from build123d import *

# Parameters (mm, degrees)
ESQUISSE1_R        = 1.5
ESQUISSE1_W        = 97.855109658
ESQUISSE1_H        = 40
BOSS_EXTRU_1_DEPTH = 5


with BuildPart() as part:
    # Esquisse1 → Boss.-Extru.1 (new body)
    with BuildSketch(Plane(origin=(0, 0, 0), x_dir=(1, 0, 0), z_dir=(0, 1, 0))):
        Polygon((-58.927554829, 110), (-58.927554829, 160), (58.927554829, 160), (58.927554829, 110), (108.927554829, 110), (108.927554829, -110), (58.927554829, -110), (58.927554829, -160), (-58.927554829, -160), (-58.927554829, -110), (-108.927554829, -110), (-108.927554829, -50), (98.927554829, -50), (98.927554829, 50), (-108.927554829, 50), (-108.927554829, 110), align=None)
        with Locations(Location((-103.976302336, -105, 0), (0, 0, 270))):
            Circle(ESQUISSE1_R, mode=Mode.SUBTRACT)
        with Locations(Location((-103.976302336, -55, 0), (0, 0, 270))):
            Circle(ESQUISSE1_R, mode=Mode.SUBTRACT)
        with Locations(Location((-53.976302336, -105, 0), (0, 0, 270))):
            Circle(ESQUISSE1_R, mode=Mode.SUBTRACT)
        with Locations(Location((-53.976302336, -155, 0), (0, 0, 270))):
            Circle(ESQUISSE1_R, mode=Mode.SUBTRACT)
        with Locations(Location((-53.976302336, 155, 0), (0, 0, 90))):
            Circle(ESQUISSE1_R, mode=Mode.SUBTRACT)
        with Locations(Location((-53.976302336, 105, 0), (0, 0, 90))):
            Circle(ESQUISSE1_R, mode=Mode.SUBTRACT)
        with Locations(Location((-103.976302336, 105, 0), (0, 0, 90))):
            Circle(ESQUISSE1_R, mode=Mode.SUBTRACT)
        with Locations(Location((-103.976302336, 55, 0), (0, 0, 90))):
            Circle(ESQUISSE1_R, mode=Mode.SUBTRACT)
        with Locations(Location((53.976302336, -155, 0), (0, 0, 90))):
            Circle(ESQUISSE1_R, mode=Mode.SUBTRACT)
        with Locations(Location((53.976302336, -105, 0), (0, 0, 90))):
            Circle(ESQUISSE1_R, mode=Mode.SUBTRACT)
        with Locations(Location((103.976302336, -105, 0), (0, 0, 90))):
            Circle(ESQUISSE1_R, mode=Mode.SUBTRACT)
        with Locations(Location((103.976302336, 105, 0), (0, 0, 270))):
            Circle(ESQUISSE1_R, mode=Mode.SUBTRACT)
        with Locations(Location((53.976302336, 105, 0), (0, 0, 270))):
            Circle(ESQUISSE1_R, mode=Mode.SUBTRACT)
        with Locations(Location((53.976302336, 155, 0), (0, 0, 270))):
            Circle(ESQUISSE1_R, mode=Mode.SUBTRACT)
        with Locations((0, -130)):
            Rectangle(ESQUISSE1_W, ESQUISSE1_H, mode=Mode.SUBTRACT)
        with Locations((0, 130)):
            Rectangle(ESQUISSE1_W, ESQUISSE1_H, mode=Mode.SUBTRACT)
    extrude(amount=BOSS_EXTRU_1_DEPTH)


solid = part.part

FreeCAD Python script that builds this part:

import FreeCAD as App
import Part
import Sketcher
Q = App.Units.Quantity

doc = App.newDocument("Part")
params = doc.addObject("Spreadsheet::Sheet", "Params")
for row, (alias, value) in enumerate([
    ("sketch1_diameter", "3 mm"),
    ("sketch1_width", "50 mm"),
    ("sketch1_height", "60 mm"),
    ("sketch1_height2", "100 mm"),
    ("sketch1_height3", "40 mm"),
    ("pad1_length", "5 mm"),
], start=1):
    params.set(f"A{row}", alias)
    params.set(f"B{row}", "=" + value)
    params.setAlias(f"B{row}", alias)

body = doc.addObject("PartDesign::Body", "Body")

sketch1 = body.newObject("Sketcher::SketchObject", "Sketch")
sketch1.AttachmentSupport = (doc.getObject("XZ_Plane"), [""])
sketch1.MapMode = "FlatFace"
sketch1.addGeometry(Part.LineSegment(App.Vector(-58.9, -160, 0), App.Vector(-58.9, -110, 0)), False)
sketch1.addGeometry(Part.LineSegment(App.Vector(-58.9, -110, 0), App.Vector(-108.9, -110, 0)), False)
sketch1.addGeometry(Part.LineSegment(App.Vector(-108.9, -110, 0), App.Vector(-108.9, -50, 0)), False)
sketch1.addGeometry(Part.LineSegment(App.Vector(-108.9, -50, 0), App.Vector(98.9, -50, 0)), False)
sketch1.addGeometry(Part.LineSegment(App.Vector(98.9, -50, 0), App.Vector(98.9, 50, 0)), False)
sketch1.addGeometry(Part.LineSegment(App.Vector(98.9, 50, 0), App.Vector(-108.9, 50, 0)), False)
sketch1.addGeometry(Part.LineSegment(App.Vector(-108.9, 50, 0), App.Vector(-108.9, 110, 0)), False)
sketch1.addGeometry(Part.LineSegment(App.Vector(-108.9, 110, 0), App.Vector(-58.9, 110, 0)), False)
sketch1.addGeometry(Part.LineSegment(App.Vector(-58.9, 110, 0), App.Vector(-58.9, 160, 0)), False)
sketch1.addGeometry(Part.LineSegment(App.Vector(-58.9, 160, 0), App.Vector(58.9, 160, 0)), False)
sketch1.addGeometry(Part.LineSegment(App.Vector(58.9, 160, 0), App.Vector(58.9, 110, 0)), False)
sketch1.addGeometry(Part.LineSegment(App.Vector(58.9, 110, 0), App.Vector(108.9, 110, 0)), False)
sketch1.addGeometry(Part.LineSegment(App.Vector(108.9, 110, 0), App.Vector(108.9, -110, 0)), False)
sketch1.addGeometry(Part.LineSegment(App.Vector(108.9, -110, 0), App.Vector(58.9, -110, 0)), False)
sketch1.addGeometry(Part.LineSegment(App.Vector(58.9, -110, 0), App.Vector(58.9, -160, 0)), False)
sketch1.addGeometry(Part.LineSegment(App.Vector(58.9, -160, 0), App.Vector(-58.9, -160, 0)), False)
sketch1.addGeometry(Part.Circle(App.Vector(54, 155, 0), App.Vector(0, 0, 1), 1.5), False)
sketch1.addGeometry(Part.Circle(App.Vector(104, 105, 0), App.Vector(0, 0, 1), 1.5), False)
sketch1.addGeometry(Part.Circle(App.Vector(54, 105, 0), App.Vector(0, 0, 1), 1.5), False)
sketch1.addGeometry(Part.LineSegment(App.Vector(-48.9, 150, 0), App.Vector(-48.9, 110, 0)), False)
sketch1.addGeometry(Part.LineSegment(App.Vector(-48.9, 110, 0), App.Vector(48.9, 110, 0)), False)
sketch1.addGeometry(Part.LineSegment(App.Vector(48.9, 110, 0), App.Vector(48.9, 150, 0)), False)
sketch1.addGeometry(Part.LineSegment(App.Vector(48.9, 150, 0), App.Vector(-48.9, 150, 0)), False)
sketch1.addGeometry(Part.Circle(App.Vector(-54, 155, 0), App.Vector(0, 0, 1), 1.5), False)
sketch1.addGeometry(Part.Circle(App.Vector(-54, 105, 0), App.Vector(0, 0, 1), 1.5), False)
sketch1.addGeometry(Part.Circle(App.Vector(-104, 105, 0), App.Vector(0, 0, 1), 1.5), False)
sketch1.addGeometry(Part.Circle(App.Vector(-104, 55, 0), App.Vector(0, 0, 1), 1.5), False)
sketch1.addGeometry(Part.Circle(App.Vector(104, -105, 0), App.Vector(0, 0, 1), 1.5), False)
sketch1.addGeometry(Part.Circle(App.Vector(54, -105, 0), App.Vector(0, 0, 1), 1.5), False)
sketch1.addGeometry(Part.Circle(App.Vector(54, -155, 0), App.Vector(0, 0, 1), 1.5), False)
sketch1.addGeometry(Part.LineSegment(App.Vector(-48.9, -110, 0), App.Vector(-48.9, -150, 0)), False)
sketch1.addGeometry(Part.LineSegment(App.Vector(-48.9, -150, 0), App.Vector(48.9, -150, 0)), False)
sketch1.addGeometry(Part.LineSegment(App.Vector(48.9, -150, 0), App.Vector(48.9, -110, 0)), False)
sketch1.addGeometry(Part.LineSegment(App.Vector(48.9, -110, 0), App.Vector(-48.9, -110, 0)), False)
sketch1.addGeometry(Part.Circle(App.Vector(-104, -55, 0), App.Vector(0, 0, 1), 1.5), False)
sketch1.addGeometry(Part.Circle(App.Vector(-54, -105, 0), App.Vector(0, 0, 1), 1.5), False)
sketch1.addGeometry(Part.Circle(App.Vector(-104, -105, 0), App.Vector(0, 0, 1), 1.5), False)
sketch1.addGeometry(Part.Circle(App.Vector(-54, -155, 0), App.Vector(0, 0, 1), 1.5), False)
sketch1.addConstraint(Sketcher.Constraint("Coincident", 0, 2, 1, 1))
sketch1.addConstraint(Sketcher.Constraint("Coincident", 1, 2, 2, 1))
sketch1.addConstraint(Sketcher.Constraint("Coincident", 2, 2, 3, 1))
sketch1.addConstraint(Sketcher.Constraint("Coincident", 3, 2, 4, 1))
sketch1.addConstraint(Sketcher.Constraint("Coincident", 4, 2, 5, 1))
sketch1.addConstraint(Sketcher.Constraint("Coincident", 5, 2, 6, 1))
sketch1.addConstraint(Sketcher.Constraint("Coincident", 6, 2, 7, 1))
sketch1.addConstraint(Sketcher.Constraint("Coincident", 7, 2, 8, 1))
sketch1.addConstraint(Sketcher.Constraint("Coincident", 8, 2, 9, 1))
sketch1.addConstraint(Sketcher.Constraint("Coincident", 9, 2, 10, 1))
sketch1.addConstraint(Sketcher.Constraint("Coincident", 10, 2, 11, 1))
sketch1.addConstraint(Sketcher.Constraint("Coincident", 11, 2, 12, 1))
sketch1.addConstraint(Sketcher.Constraint("Coincident", 12, 2, 13, 1))
sketch1.addConstraint(Sketcher.Constraint("Coincident", 13, 2, 14, 1))
sketch1.addConstraint(Sketcher.Constraint("Coincident", 14, 2, 15, 1))
sketch1.addConstraint(Sketcher.Constraint("Coincident", 15, 2, 0, 1))
sketch1.addConstraint(Sketcher.Constraint("Coincident", 19, 2, 20, 1))
sketch1.addConstraint(Sketcher.Constraint("Coincident", 20, 2, 21, 1))
sketch1.addConstraint(Sketcher.Constraint("Coincident", 21, 2, 22, 1))
sketch1.addConstraint(Sketcher.Constraint("Coincident", 22, 2, 19, 1))
sketch1.addConstraint(Sketcher.Constraint("Coincident", 30, 2, 31, 1))
sketch1.addConstraint(Sketcher.Constraint("Coincident", 31, 2, 32, 1))
sketch1.addConstraint(Sketcher.Constraint("Coincident", 32, 2, 33, 1))
sketch1.addConstraint(Sketcher.Constraint("Coincident", 33, 2, 30, 1))
sketch1.addConstraint(Sketcher.Constraint("Vertical", 0))
sketch1.addConstraint(Sketcher.Constraint("Horizontal", 1))
sketch1.addConstraint(Sketcher.Constraint("Vertical", 2))
sketch1.addConstraint(Sketcher.Constraint("Horizontal", 3))
sketch1.addConstraint(Sketcher.Constraint("Vertical", 4))
sketch1.addConstraint(Sketcher.Constraint("Horizontal", 5))
sketch1.addConstraint(Sketcher.Constraint("Vertical", 6))
sketch1.addConstraint(Sketcher.Constraint("Horizontal", 7))
sketch1.addConstraint(Sketcher.Constraint("Vertical", 8))
sketch1.addConstraint(Sketcher.Constraint("Horizontal", 9))
sketch1.addConstraint(Sketcher.Constraint("Vertical", 10))
sketch1.addConstraint(Sketcher.Constraint("Horizontal", 11))
sketch1.addConstraint(Sketcher.Constraint("Vertical", 12))
sketch1.addConstraint(Sketcher.Constraint("Horizontal", 13))
sketch1.addConstraint(Sketcher.Constraint("Vertical", 14))
sketch1.addConstraint(Sketcher.Constraint("Horizontal", 15))
sketch1.addConstraint(Sketcher.Constraint("Vertical", 19))
sketch1.addConstraint(Sketcher.Constraint("Horizontal", 20))
sketch1.addConstraint(Sketcher.Constraint("Vertical", 21))
sketch1.addConstraint(Sketcher.Constraint("Horizontal", 22))
sketch1.addConstraint(Sketcher.Constraint("Vertical", 30))
sketch1.addConstraint(Sketcher.Constraint("Horizontal", 31))
sketch1.addConstraint(Sketcher.Constraint("Vertical", 32))
sketch1.addConstraint(Sketcher.Constraint("Horizontal", 33))
sketch1.addConstraint(Sketcher.Constraint("Equal", 16, 17))
sketch1.addConstraint(Sketcher.Constraint("Equal", 17, 18))
sketch1.addConstraint(Sketcher.Constraint("Equal", 18, 23))
sketch1.addConstraint(Sketcher.Constraint("Equal", 23, 24))
sketch1.addConstraint(Sketcher.Constraint("Equal", 24, 25))
sketch1.addConstraint(Sketcher.Constraint("Equal", 25, 26))
sketch1.addConstraint(Sketcher.Constraint("Equal", 26, 27))
sketch1.addConstraint(Sketcher.Constraint("Equal", 27, 28))
sketch1.addConstraint(Sketcher.Constraint("Equal", 28, 29))
sketch1.addConstraint(Sketcher.Constraint("Equal", 29, 34))
sketch1.addConstraint(Sketcher.Constraint("Equal", 34, 35))
sketch1.addConstraint(Sketcher.Constraint("Equal", 35, 36))
sketch1.addConstraint(Sketcher.Constraint("Equal", 36, 37))
sketch1.addConstraint(Sketcher.Constraint("Symmetric", 25, 3, 27, 3, -1, 1))
sketch1.addConstraint(Sketcher.Constraint("Symmetric", 24, 3, 28, 3, -1, 1))
sketch1.addConstraint(Sketcher.Constraint("Symmetric", 23, 3, 29, 3, -1, 1))
sketch1.addConstraint(Sketcher.Constraint("Symmetric", 18, 3, 35, 3, -1, 1))
sketch1.addConstraint(Sketcher.Constraint("Symmetric", 17, 3, 36, 3, -1, 1))
sketch1.addConstraint(Sketcher.Constraint("Symmetric", 16, 3, 37, 3, -1, 1))
sketch1.addConstraint(Sketcher.Constraint("Symmetric", 0, 2, 10, 2, -1, 1))
sketch1.addConstraint(Sketcher.Constraint("Symmetric", 6, 2, 12, 2, -1, 1))
sketch1.addConstraint(Sketcher.Constraint("Symmetric", 8, 2, 14, 2, -1, 1))
sketch1.addConstraint(Sketcher.Constraint("Symmetric", 21, 2, 30, 2, -1, 1))
sketch1.addConstraint(Sketcher.Constraint("Symmetric", 19, 2, 32, 2, -1, 1))
sketch1.addConstraint(Sketcher.Constraint("Symmetric", 16, 3, 23, 3, -2))
sketch1.addConstraint(Sketcher.Constraint("Symmetric", 18, 3, 24, 3, -2))
sketch1.addConstraint(Sketcher.Constraint("Symmetric", 17, 3, 25, 3, -2))
sketch1.addConstraint(Sketcher.Constraint("Symmetric", 7, 2, 10, 2, -2))
sketch1.addConstraint(Sketcher.Constraint("Symmetric", 26, 3, 34, 3, -1))
sketch1.addConstraint(Sketcher.Constraint("Symmetric", 2, 2, 5, 2, -1))
sketch1.addConstraint(Sketcher.Constraint("Horizontal", 17, 3, 18, 3))
sketch1.addConstraint(Sketcher.Constraint("Horizontal", 11, 2, 19, 2))
sketch1.addConstraint(Sketcher.Constraint("Vertical", 16, 3, 18, 3))
sketch1.addConstraint(Sketcher.Constraint("Vertical", 25, 3, 26, 3))
sketch1.addConstraint(Sketcher.Constraint("Vertical", 22, 2, 30, 2))
sketch1.addConstraint(Sketcher.Constraint("Equal", 13, 0))
sketch1.addConstraint(Sketcher.Constraint("Diameter", 16, Q("3 mm")))
sketch1.addConstraint(Sketcher.Constraint("DistanceX", 1, 2, 1, 1, Q("50 mm")))
sketch1.addConstraint(Sketcher.Constraint("DistanceY", 2, 1, 2, 2, Q("60 mm")))
sketch1.addConstraint(Sketcher.Constraint("DistanceY", 4, 1, 4, 2, Q("100 mm")))
sketch1.addConstraint(Sketcher.Constraint("DistanceY", 19, 2, 19, 1, Q("40 mm")))
sketch1.addConstraint(Sketcher.Constraint("DistanceY", -1, 1, 16, 3, Q("155 mm")))
sketch1.addConstraint(Sketcher.Constraint("DistanceY", -1, 1, 17, 3, Q("105 mm")))
sketch1.addConstraint(Sketcher.Constraint("DistanceY", -1, 1, 26, 3, Q("55 mm")))
sketch1.addConstraint(Sketcher.Constraint("DistanceX", 16, 3, 17, 3, Q("50 mm")))
sketch1.addConstraint(Sketcher.Constraint("DistanceX", 9, 2, 4, 2, Q("40 mm")))
sketch1.addConstraint(Sketcher.Constraint("DistanceX", 7, 2, 19, 2, Q("10 mm")))
sketch1.addConstraint(Sketcher.Constraint("DistanceX", 3, 1, 3, 2, Q("207.85511 mm")))
sketch1.addConstraint(Sketcher.Constraint("DistanceX", -1, 1, 16, 3, Q("53.976302 mm")))
sketch1.setExpression("Constraints[84]", "Params.sketch1_diameter")
sketch1.setExpression("Constraints[85]", "Params.sketch1_width")
sketch1.setExpression("Constraints[86]", "Params.sketch1_height")
sketch1.setExpression("Constraints[87]", "Params.sketch1_height2")
sketch1.setExpression("Constraints[88]", "Params.sketch1_height3")
pad1 = body.newObject("PartDesign::Pad", "Pad")
pad1.Profile = sketch1
pad1.setExpression("Length", "Params.pad1_length")
pad1.Reversed = True

doc.recompute()
